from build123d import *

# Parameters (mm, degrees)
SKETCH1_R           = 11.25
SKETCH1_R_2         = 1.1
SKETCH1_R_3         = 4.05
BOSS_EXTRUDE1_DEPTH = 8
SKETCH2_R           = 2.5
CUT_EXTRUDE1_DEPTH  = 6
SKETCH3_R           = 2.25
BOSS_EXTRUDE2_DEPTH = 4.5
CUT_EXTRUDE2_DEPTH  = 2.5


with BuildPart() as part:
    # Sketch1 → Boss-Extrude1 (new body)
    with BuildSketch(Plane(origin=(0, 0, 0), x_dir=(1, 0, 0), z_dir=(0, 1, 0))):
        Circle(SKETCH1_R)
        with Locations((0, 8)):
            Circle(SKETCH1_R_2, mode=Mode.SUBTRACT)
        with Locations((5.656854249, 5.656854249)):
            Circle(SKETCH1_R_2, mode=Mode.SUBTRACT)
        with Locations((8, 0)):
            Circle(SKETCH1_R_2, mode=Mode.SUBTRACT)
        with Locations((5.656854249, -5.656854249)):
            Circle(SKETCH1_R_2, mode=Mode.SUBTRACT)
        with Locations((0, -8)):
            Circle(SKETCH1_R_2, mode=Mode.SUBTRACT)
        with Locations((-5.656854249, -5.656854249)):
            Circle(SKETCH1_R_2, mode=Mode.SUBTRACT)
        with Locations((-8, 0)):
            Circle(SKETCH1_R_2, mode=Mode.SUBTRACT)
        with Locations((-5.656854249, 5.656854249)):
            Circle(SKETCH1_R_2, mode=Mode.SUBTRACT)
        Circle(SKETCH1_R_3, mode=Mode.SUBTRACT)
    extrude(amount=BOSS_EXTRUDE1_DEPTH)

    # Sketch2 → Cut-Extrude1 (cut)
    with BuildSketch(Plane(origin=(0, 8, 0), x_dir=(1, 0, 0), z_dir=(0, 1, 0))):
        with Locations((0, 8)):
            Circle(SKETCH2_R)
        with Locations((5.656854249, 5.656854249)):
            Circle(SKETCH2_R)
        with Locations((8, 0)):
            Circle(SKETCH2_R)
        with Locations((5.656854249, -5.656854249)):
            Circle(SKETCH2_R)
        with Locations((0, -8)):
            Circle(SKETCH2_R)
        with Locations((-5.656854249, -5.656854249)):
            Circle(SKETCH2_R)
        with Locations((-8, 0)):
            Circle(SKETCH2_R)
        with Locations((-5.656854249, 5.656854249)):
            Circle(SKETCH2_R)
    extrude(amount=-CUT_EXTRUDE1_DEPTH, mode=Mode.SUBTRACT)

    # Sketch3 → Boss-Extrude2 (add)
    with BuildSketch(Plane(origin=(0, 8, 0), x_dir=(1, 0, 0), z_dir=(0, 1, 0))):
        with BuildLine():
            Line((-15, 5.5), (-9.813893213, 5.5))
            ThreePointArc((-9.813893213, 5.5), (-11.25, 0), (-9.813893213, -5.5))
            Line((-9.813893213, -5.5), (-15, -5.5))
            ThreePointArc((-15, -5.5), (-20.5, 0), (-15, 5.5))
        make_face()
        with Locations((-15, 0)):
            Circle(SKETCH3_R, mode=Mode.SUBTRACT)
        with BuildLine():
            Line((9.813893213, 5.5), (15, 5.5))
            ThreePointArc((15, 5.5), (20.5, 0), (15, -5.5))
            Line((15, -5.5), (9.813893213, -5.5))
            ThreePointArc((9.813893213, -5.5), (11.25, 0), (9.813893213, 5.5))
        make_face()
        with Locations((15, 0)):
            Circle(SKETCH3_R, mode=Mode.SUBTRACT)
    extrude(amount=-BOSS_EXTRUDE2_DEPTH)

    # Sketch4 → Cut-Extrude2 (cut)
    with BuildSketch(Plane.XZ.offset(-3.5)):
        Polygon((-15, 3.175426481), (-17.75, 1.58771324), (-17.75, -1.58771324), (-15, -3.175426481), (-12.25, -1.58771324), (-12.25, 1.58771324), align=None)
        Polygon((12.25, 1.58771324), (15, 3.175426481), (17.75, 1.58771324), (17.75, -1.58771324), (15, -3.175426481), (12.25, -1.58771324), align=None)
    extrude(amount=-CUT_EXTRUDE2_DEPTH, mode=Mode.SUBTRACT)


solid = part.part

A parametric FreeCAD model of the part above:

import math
import FreeCAD as App
import Part
import Sketcher
Q = App.Units.Quantity


def add_polygon(sketch, points):
    """Adds a closed chain of lines whose ends are joined by coincident constraints."""
    first, n = sketch.GeometryCount, len(points)
    for a, b in zip(points, points[1:] + points[:1]):
        sketch.addGeometry(Part.LineSegment(App.Vector(*a, 0), App.Vector(*b, 0)), False)
    for i in range(n):
        sketch.addConstraint(Sketcher.Constraint("Coincident", first + i, 2, first + (i + 1) % n, 1))

doc = App.newDocument("Part")
body = doc.addObject("PartDesign::Body", "Body")

# Sketch on XZ plane
sketch1 = body.newObject("Sketcher::SketchObject", "Sketch")
sketch1.AttachmentSupport = (doc.getObject("XZ_Plane"), [""])
sketch1.MapMode = "FlatFace"
sketch1.addGeometry([
    Part.Circle(App.Vector(0, 0, 0), App.Vector(0, 0, 1), 11.2),  # 0
    Part.Circle(App.Vector(-5.7, 5.7, 0), App.Vector(0, 0, 1), 1.1),  # 1
    Part.Circle(App.Vector(-8, 0, 0), App.Vector(0, 0, 1), 1.1),  # 2
    Part.Circle(App.Vector(0, 8, 0), App.Vector(0, 0, 1), 1.1),  # 3
    Part.Circle(App.Vector(5.7, 5.7, 0), App.Vector(0, 0, 1), 1.1),  # 4
    Part.Circle(App.Vector(0, 0, 0), App.Vector(0, 0, 1), 4),  # 5
    Part.Circle(App.Vector(8, 0, 0), App.Vector(0, 0, 1), 1.1),  # 6
    Part.Circle(App.Vector(-5.7, -5.7, 0), App.Vector(0, 0, 1), 1.1),  # 7
    Part.Circle(App.Vector(0, -8, 0), App.Vector(0, 0, 1), 1.1),  # 8
    Part.Circle(App.Vector(5.7, -5.7, 0), App.Vector(0, 0, 1), 1.1),  # 9
], False)
sketch1.addConstraint([
    Sketcher.Constraint("Coincident", 0, 3, -1, 1),
    Sketcher.Constraint("Coincident", 5, 3, -1, 1),
    Sketcher.Constraint("Equal", 1, 2),
    Sketcher.Constraint("Equal", 2, 3),
    Sketcher.Constraint("Equal", 3, 4),
    Sketcher.Constraint("Equal", 4, 6),
    Sketcher.Constraint("Equal", 6, 7),
    Sketcher.Constraint("Equal", 7, 8),
    Sketcher.Constraint("Equal", 8, 9),
    Sketcher.Constraint("Symmetric", 2, 3, 6, 3, -1, 1),
    Sketcher.Constraint("Symmetric", 4, 3, 7, 3, -1, 1),
    Sketcher.Constraint("Symmetric", 3, 3, 8, 3, -1, 1),
    Sketcher.Constraint("Symmetric", 1, 3, 9, 3, -1, 1),
    Sketcher.Constraint("Symmetric", 1, 3, 4, 3, -2),
    Sketcher.Constraint("PointOnObject", 2, 3, -1),
    Sketcher.Constraint("PointOnObject", 3, 3, -2),
    Sketcher.Constraint("Diameter", 0, Q("22.5 mm")),
    Sketcher.Constraint("Diameter", 1, Q("2.2 mm")),
    Sketcher.Constraint("Diameter", 5, Q("8.1 mm")),
    Sketcher.Constraint("DistanceX", 2, 3, -1, 1, Q("8 mm")),
    Sketcher.Constraint("DistanceY", -1, 1, 3, 3, Q("8 mm")),
    Sketcher.Constraint("DistanceX", 1, 3, 4, 3, Q("11.313708 mm")),
    Sketcher.Constraint("DistanceY", 7, 3, 1, 3, Q("11.313708 mm")),
])
pad1 = body.newObject("PartDesign::Pad", "Pad")
pad1.Profile = sketch1
pad1.Length = 8
pad1.Reversed = True

# Sketch on XZ plane
sketch2 = body.newObject("Sketcher::SketchObject", "Sketch001")
sketch2.AttachmentSupport = (doc.getObject("XZ_Plane"), [""])
sketch2.MapMode = "FlatFace"
sketch2.AttachmentOffset = App.Placement(App.Vector(0, 0, -8), App.Rotation())
sketch2.addGeometry([
    Part.Circle(App.Vector(0, -8, 0), App.Vector(0, 0, 1), 2.5),  # 0
    Part.Circle(App.Vector(5.7, -5.7, 0), App.Vector(0, 0, 1), 2.5),  # 1
    Part.Circle(App.Vector(8, 0, 0), App.Vector(0, 0, 1), 2.5),  # 2
    Part.Circle(App.Vector(5.7, 5.7, 0), App.Vector(0, 0, 1), 2.5),  # 3
    Part.Circle(App.Vector(0, 8, 0), App.Vector(0, 0, 1), 2.5),  # 4
    Part.Circle(App.Vector(-5.7, 5.7, 0), App.Vector(0, 0, 1), 2.5),  # 5
    Part.Circle(App.Vector(-8, 0, 0), App.Vector(0, 0, 1), 2.5),  # 6
    Part.Circle(App.Vector(-5.7, -5.7, 0), App.Vector(0, 0, 1), 2.5),  # 7
], False)
sketch2.addConstraint([
    Sketcher.Constraint("Equal", 0, 1),
    Sketcher.Constraint("Equal", 1, 2),
    Sketcher.Constraint("Equal", 2, 3),
    Sketcher.Constraint("Equal", 3, 4),
    Sketcher.Constraint("Equal", 4, 5),
    Sketcher.Constraint("Equal", 5, 6),
    Sketcher.Constraint("Equal", 6, 7),
    Sketcher.Constraint("Symmetric", 0, 3, 4, 3, -1, 1),
    Sketcher.Constraint("Symmetric", 1, 3, 5, 3, -1, 1),
    Sketcher.Constraint("Symmetric", 2, 3, 6, 3, -1, 1),
    Sketcher.Constraint("Symmetric", 3, 3, 7, 3, -1, 1),
    Sketcher.Constraint("Symmetric", 3, 3, 5, 3, -2),
    Sketcher.Constraint("PointOnObject", 0, 3, -2),
    Sketcher.Constraint("PointOnObject", 2, 3, -1),
    Sketcher.Constraint("Diameter", 0, Q("5 mm")),
    Sketcher.Constraint("DistanceY", 0, 3, -1, 1, Q("8 mm")),
    Sketcher.Constraint("DistanceX", -1, 1, 2, 3, Q("8 mm")),
    Sketcher.Constraint("DistanceY", 1, 3, 3, 3, Q("11.313708 mm")),
    Sketcher.Constraint("DistanceX", 5, 3, 3, 3, Q("11.313708 mm")),
])
pocket1 = body.newObject("PartDesign::Pocket", "Pocket")
pocket1.Profile = sketch2
pocket1.Length = 6
pocket1.Reversed = True

# Sketch on XZ plane
sketch3 = body.newObject("Sketcher::SketchObject", "Sketch002")
sketch3.AttachmentSupport = (doc.getObject("XZ_Plane"), [""])
sketch3.MapMode = "FlatFace"
sketch3.AttachmentOffset = App.Placement(App.Vector(0, 0, -8), App.Rotation())
sketch3.addGeometry([
    Part.LineSegment(App.Vector(-9.8, -5.5, 0), App.Vector(-15, -5.5, 0)),  # 0
    Part.ArcOfCircle(Part.Circle(App.Vector(-15, 0, 0), App.Vector(0, 0, 1), 5.5), math.radians(90), math.radians(270)),  # 1
    Part.LineSegment(App.Vector(-15, 5.5, 0), App.Vector(-9.8, 5.5, 0)),  # 2
    Part.ArcOfCircle(Part.Circle(App.Vector(0, 0, 0), App.Vector(0, 0, 1), 11.2), math.radians(151), math.radians(209)),  # 3
    Part.Circle(App.Vector(-15, 0, 0), App.Vector(0, 0, 1), 2.2),  # 4
    Part.LineSegment(App.Vector(15, -5.5, 0), App.Vector(9.8, -5.5, 0)),  # 5
    Part.ArcOfCircle(Part.Circle(App.Vector(0, 0, 0), App.Vector(0, 0, 1), 11.2), math.radians(-29), math.radians(29)),  # 6
    Part.LineSegment(App.Vector(9.8, 5.5, 0), App.Vector(15, 5.5, 0)),  # 7
    Part.ArcOfCircle(Part.Circle(App.Vector(15, 0, 0), App.Vector(0, 0, 1), 5.5), math.radians(-90), math.radians(90)),  # 8
    Part.Circle(App.Vector(15, 0, 0), App.Vector(0, 0, 1), 2.2),  # 9
], False)
sketch3.addConstraint([
    Sketcher.Constraint("Tangent", 0, 2, 1, 2),
    Sketcher.Constraint("Tangent", 1, 1, 2, 1),
    Sketcher.Constraint("Coincident", 2, 2, 3, 1),
    Sketcher.Constraint("Coincident", 3, 2, 0, 1),
    Sketcher.Constraint("Coincident", 5, 2, 6, 1),
    Sketcher.Constraint("Coincident", 6, 2, 7, 1),
    Sketcher.Constraint("Tangent", 7, 2, 8, 2),
    Sketcher.Constraint("Tangent", 8, 1, 5, 1),
    Sketcher.Constraint("Horizontal", 0),
    Sketcher.Constraint("Horizontal", 2),
    Sketcher.Constraint("Horizontal", 5),
    Sketcher.Constraint("Horizontal", 7),
    Sketcher.Constraint("Coincident", 3, 3, -1, 1),
    Sketcher.Constraint("Coincident", 6, 3, -1, 1),
    Sketcher.Constraint("Coincident", 4, 3, 1, 3),
    Sketcher.Constraint("Coincident", 9, 3, 8, 3),
    Sketcher.Constraint("Equal", 3, 6),
    Sketcher.Constraint("Equal", 1, 8),
    Sketcher.Constraint("Equal", 4, 9),
    Sketcher.Constraint("Symmetric", 1, 3, 8, 3, -1, 1),
    Sketcher.Constraint("PointOnObject", 1, 3, -1),
    Sketcher.Constraint("Diameter", 4, Q("4.5 mm")),
    Sketcher.Constraint("Radius", 1, Q("5.5 mm")),
    Sketcher.Constraint("Radius", 3, Q("11.25 mm")),
    Sketcher.Constraint("DistanceX", 1, 3, -1, 1, Q("15 mm")),
])
pad2 = body.newObject("PartDesign::Pad", "Pad001")
pad2.Profile = sketch3
pad2.Length = 4.5

# Sketch on XZ plane
sketch4 = body.newObject("Sketcher::SketchObject", "Sketch003")
sketch4.AttachmentSupport = (doc.getObject("XZ_Plane"), [""])
sketch4.MapMode = "FlatFace"
sketch4.AttachmentOffset = App.Placement(App.Vector(0, 0, -3.5), App.Rotation())
add_polygon(sketch4, [(-15, 3.2), (-17.8, 1.6), (-17.8, -1.6), (-15, -3.2), (-12.2, -1.6), (-12.2, 1.6)])  # lines 0-5
add_polygon(sketch4, [(15, 3.2), (12.2, 1.6), (12.2, -1.6), (15, -3.2), (17.8, -1.6), (17.8, 1.6)])  # lines 6-11
sketch4.addConstraint([
    Sketcher.Constraint("Vertical", 1),
    Sketcher.Constraint("Vertical", 4),
    Sketcher.Constraint("Vertical", 7),
    Sketcher.Constraint("Vertical", 10),
    Sketcher.Constraint("Symmetric", 3, 2, 6, 2, -1, 1),
    Sketcher.Constraint("Symmetric", 5, 2, 8, 2, -1, 1),
    Sketcher.Constraint("Symmetric", 0, 2, 9, 2, -1, 1),
    Sketcher.Constraint("Symmetric", 2, 2, 11, 2, -1, 1),
    Sketcher.Constraint("Symmetric", 2, 2, 8, 2, -2),
    Sketcher.Constraint("Parallel", 0, 3),
    Sketcher.Constraint("Parallel", 2, 5),
    Sketcher.Constraint("Parallel", 5, 8),
    Sketcher.Constraint("Parallel", 8, 11),
    Sketcher.Constraint("Horizontal", 1, 2, 3, 2),
    Sketcher.Constraint("Horizontal", 0, 2, 4, 2),
    Sketcher.Constraint("Angle", 0, Q("-150 deg")),
    Sketcher.Constraint("DistanceX", 2, 2, -1, 1, Q("15 mm")),
    Sketcher.Constraint("DistanceX", 1, 2, 3, 2, Q("5.5 mm")),
    Sketcher.Constraint("DistanceY", 1, 2, 1, 1, Q("3.175426 mm")),
])
pocket2 = body.newObject("PartDesign::Pocket", "Pocket001")
pocket2.Profile = sketch4
pocket2.Length = 2.5

doc.recompute()
